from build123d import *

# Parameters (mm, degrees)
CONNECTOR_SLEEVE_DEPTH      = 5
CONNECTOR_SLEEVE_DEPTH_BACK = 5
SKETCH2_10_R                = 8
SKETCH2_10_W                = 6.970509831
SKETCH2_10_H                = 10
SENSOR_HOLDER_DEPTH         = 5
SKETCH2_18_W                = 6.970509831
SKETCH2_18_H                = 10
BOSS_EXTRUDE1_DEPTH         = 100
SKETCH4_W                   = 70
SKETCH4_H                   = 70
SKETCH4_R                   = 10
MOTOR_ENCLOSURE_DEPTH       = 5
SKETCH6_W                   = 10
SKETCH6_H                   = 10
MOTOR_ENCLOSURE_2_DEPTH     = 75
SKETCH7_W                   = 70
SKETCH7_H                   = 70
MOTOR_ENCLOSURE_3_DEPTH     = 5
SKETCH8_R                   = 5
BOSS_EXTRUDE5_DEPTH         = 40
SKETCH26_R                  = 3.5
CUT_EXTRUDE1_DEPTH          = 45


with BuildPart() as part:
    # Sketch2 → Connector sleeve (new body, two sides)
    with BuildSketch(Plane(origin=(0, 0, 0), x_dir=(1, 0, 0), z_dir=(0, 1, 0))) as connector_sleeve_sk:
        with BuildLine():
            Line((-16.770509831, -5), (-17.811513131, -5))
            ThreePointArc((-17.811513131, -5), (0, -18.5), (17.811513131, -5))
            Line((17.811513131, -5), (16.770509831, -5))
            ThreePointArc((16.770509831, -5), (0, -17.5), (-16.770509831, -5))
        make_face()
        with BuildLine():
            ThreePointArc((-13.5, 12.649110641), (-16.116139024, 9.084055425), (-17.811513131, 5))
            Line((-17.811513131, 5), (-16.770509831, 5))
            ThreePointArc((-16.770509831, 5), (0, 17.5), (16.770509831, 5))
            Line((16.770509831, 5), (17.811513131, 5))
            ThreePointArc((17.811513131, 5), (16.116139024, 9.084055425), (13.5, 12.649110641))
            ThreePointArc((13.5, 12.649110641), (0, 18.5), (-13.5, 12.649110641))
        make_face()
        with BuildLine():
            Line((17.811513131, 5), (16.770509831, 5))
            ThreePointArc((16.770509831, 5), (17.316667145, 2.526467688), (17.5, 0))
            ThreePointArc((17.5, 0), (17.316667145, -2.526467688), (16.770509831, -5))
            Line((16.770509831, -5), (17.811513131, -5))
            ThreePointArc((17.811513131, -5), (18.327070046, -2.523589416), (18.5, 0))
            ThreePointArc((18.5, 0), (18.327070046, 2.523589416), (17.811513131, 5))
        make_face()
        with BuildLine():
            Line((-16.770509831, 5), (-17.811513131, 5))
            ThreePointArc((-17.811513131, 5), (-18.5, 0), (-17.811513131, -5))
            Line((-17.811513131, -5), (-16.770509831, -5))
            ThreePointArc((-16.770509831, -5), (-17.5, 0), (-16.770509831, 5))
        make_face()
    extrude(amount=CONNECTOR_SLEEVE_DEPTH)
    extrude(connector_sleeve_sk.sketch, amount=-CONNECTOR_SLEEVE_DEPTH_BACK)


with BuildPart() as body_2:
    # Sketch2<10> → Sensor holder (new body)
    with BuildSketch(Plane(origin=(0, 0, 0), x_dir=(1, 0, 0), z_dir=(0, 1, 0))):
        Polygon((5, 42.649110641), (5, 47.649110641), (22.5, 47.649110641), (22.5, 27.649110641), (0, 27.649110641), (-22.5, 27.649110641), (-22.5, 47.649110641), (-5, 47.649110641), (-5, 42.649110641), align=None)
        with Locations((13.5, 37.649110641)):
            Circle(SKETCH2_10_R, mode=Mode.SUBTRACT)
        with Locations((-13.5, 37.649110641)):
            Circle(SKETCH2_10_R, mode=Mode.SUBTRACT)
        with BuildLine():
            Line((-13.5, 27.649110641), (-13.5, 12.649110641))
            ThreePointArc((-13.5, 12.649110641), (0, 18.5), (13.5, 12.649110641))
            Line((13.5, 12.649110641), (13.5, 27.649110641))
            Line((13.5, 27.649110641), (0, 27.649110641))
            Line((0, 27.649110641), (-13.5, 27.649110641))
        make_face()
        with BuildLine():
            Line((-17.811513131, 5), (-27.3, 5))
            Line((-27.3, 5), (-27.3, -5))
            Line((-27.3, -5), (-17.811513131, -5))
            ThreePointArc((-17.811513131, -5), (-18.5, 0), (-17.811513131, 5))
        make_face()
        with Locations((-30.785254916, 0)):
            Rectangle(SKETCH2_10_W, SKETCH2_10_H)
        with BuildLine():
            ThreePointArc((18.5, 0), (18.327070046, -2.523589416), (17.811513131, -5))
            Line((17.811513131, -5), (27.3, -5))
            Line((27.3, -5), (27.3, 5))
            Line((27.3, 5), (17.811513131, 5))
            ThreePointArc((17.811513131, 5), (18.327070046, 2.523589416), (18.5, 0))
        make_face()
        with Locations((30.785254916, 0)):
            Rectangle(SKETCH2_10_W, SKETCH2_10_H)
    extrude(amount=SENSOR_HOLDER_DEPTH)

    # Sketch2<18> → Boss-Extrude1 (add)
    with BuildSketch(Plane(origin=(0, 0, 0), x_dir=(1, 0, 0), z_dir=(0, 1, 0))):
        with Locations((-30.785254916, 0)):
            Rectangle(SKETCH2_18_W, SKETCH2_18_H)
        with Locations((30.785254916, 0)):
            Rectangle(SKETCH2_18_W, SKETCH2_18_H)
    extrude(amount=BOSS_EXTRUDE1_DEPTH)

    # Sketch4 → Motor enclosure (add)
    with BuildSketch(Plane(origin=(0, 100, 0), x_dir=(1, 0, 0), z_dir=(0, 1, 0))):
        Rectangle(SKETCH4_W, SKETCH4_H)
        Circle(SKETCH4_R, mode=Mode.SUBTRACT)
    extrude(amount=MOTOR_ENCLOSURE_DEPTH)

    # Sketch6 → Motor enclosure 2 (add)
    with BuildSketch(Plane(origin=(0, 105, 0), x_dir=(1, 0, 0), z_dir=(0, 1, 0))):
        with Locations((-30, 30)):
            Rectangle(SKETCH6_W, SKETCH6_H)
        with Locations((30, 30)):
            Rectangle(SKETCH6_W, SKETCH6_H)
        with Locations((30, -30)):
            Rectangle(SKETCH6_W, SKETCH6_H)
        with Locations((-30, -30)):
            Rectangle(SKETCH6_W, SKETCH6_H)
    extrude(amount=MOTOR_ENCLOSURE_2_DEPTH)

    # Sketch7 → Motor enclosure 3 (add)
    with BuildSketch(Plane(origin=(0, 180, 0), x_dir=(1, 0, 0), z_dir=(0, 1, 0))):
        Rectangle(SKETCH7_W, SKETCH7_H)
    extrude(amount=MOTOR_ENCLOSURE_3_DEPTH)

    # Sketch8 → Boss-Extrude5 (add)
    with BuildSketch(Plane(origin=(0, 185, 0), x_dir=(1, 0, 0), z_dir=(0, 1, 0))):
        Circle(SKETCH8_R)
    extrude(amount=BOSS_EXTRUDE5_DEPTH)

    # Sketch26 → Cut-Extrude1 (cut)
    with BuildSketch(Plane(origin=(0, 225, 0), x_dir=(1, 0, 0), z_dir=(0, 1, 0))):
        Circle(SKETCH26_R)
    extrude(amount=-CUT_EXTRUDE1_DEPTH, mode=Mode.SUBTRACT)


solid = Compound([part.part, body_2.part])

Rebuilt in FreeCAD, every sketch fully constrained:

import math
import FreeCAD as App
import Part
import Sketcher
Q = App.Units.Quantity


def add_polygon(sketch, points):
    """Adds a closed chain of lines whose ends are joined by coincident constraints."""
    first, n = sketch.GeometryCount, len(points)
    for a, b in zip(points, points[1:] + points[:1]):
        sketch.addGeometry(Part.LineSegment(App.Vector(*a, 0), App.Vector(*b, 0)), False)
    for i in range(n):
        sketch.addConstraint(Sketcher.Constraint("Coincident", first + i, 2, first + (i + 1) % n, 1))

doc = App.newDocument("Part")
body = doc.addObject("PartDesign::Body", "Body")

sketch1 = body.newObject("Sketcher::SketchObject", "Sketch")
sketch1.AttachmentSupport = (doc.getObject("XZ_Plane"), [""])
sketch1.MapMode = "FlatFace"
sketch1.addGeometry(Part.ArcOfCircle(Part.Circle(App.Vector(0, 0, 0), App.Vector(0, 0, 1), 19), math.radians(16), math.radians(164)), False)
sketch1.addGeometry(Part.ArcOfCircle(Part.Circle(App.Vector(0, 0, 0), App.Vector(0, 0, 1), 18), math.radians(0), math.radians(15.68)), False)
sketch1.addGeometry(Part.ArcOfCircle(Part.Circle(App.Vector(0, 0, 0), App.Vector(0, 0, 1), 18), math.radians(-15.68), math.radians(0)), False)
sketch1.addGeometry(Part.ArcOfCircle(Part.Circle(App.Vector(0, 0, 0), App.Vector(0, 0, 1), 19), math.radians(-43), math.radians(-16)), False)
sketch1.addGeometry(Part.ArcOfCircle(Part.Circle(App.Vector(0, 0, 0), App.Vector(0, 0, 1), 19), math.radians(-137), math.radians(-43)), False)
sketch1.addGeometry(Part.ArcOfCircle(Part.Circle(App.Vector(0, 0, 0), App.Vector(0, 0, 1), 19), math.radians(-164), math.radians(-137)), False)
sketch1.addGeometry(Part.ArcOfCircle(Part.Circle(App.Vector(0, 0, 0), App.Vector(0, 0, 1), 19), math.radians(164), math.radians(196)), False)
sketch1.addGeometry(Part.ArcOfCircle(Part.Circle(App.Vector(0, 0, 0), App.Vector(0, 0, 1), 18), math.radians(-163), math.radians(-17)), False)
sketch1.addGeometry(Part.ArcOfCircle(Part.Circle(App.Vector(0, 0, 0), App.Vector(0, 0, 1), 18), math.radians(-16.6), math.radians(0)), False)
sketch1.addGeometry(Part.ArcOfCircle(Part.Circle(App.Vector(0, 0, 0), App.Vector(0, 0, 1), 18), math.radians(0), math.radians(16.6)), False)
sketch1.addGeometry(Part.ArcOfCircle(Part.Circle(App.Vector(0, 0, 0), App.Vector(0, 0, 1), 18), math.radians(17), math.radians(163)), False)
sketch1.addGeometry(Part.ArcOfCircle(Part.Circle(App.Vector(0, 0, 0), App.Vector(0, 0, 1), 17), math.radians(163), math.radians(197)), False)
sketch1.addConstraint(Sketcher.Constraint("Tangent", 0, 1, 1, 2))
sketch1.addConstraint(Sketcher.Constraint("Tangent", 1, 1, 2, 2))
sketch1.addConstraint(Sketcher.Constraint("Tangent", 2, 1, 3, 2))
sketch1.addConstraint(Sketcher.Constraint("Tangent", 3, 1, 4, 2))
sketch1.addConstraint(Sketcher.Constraint("Tangent", 4, 1, 5, 2))
sketch1.addConstraint(Sketcher.Constraint("Tangent", 5, 1, 6, 2))
sketch1.addConstraint(Sketcher.Constraint("Tangent", 6, 1, 0, 2))
sketch1.addConstraint(Sketcher.Constraint("Tangent", 7, 2, 8, 1))
sketch1.addConstraint(Sketcher.Constraint("Tangent", 8, 2, 9, 1))
sketch1.addConstraint(Sketcher.Constraint("Tangent", 9, 2, 10, 1))
sketch1.addConstraint(Sketcher.Constraint("Tangent", 10, 2, 11, 1))
sketch1.addConstraint(Sketcher.Constraint("Tangent", 11, 2, 7, 1))
sketch1.addConstraint(Sketcher.Constraint("Coincident", 0, 3, -1, 1))
sketch1.addConstraint(Sketcher.Constraint("Coincident", 2, 3, -1, 1))
sketch1.addConstraint(Sketcher.Constraint("Coincident", 4, 3, -1, 1))
sketch1.addConstraint(Sketcher.Constraint("Coincident", 7, 3, -1, 1))
sketch1.addConstraint(Sketcher.Constraint("Coincident", 9, 3, -1, 1))
sketch1.addConstraint(Sketcher.Constraint("PointOnObject", 1, 1, -1))
sketch1.addConstraint(Sketcher.Constraint("PointOnObject", 8, 2, -1))
sketch1.addConstraint(Sketcher.Constraint("Horizontal", 3, 1, 4, 1))
sketch1.addConstraint(Sketcher.Constraint("Horizontal", 2, 1, 5, 1))
sketch1.addConstraint(Sketcher.Constraint("Horizontal", 0, 1, 6, 1))
sketch1.addConstraint(Sketcher.Constraint("Horizontal", 5, 1, 7, 2))
sketch1.addConstraint(Sketcher.Constraint("Horizontal", 6, 1, 9, 2))
sketch1.addConstraint(Sketcher.Constraint("Horizontal", 9, 2, 10, 2))
sketch1.addConstraint(Sketcher.Constraint("Horizontal", 7, 2, 11, 2))
sketch1.addConstraint(Sketcher.Constraint("Vertical", 0, 1, 2, 1))
sketch1.addConstraint(Sketcher.Constraint("Radius", 0, Q("18.5 mm")))
sketch1.addConstraint(Sketcher.Constraint("Radius", 7, Q("17.5 mm")))
sketch1.addConstraint(Sketcher.Constraint("DistanceY", -1, 1, 0, 1, Q("5 mm")))
sketch1.addConstraint(Sketcher.Constraint("DistanceX", 3, 1, 1, 1, Q("5 mm")))
pad1 = body.newObject("PartDesign::Pad", "Pad")
pad1.Profile = sketch1
pad1.Type = "TwoLengths"
pad1.Length = 5
pad1.Length2 = 5
pad1.Reversed = True
body2 = doc.addObject("PartDesign::Body", "Body001")
body2.AllowCompound = True

sketch2 = body2.newObject("Sketcher::SketchObject", "Sketch001")
sketch2.AttachmentSupport = (doc.getObject("XZ_Plane001"), [""])
sketch2.MapMode = "FlatFace"
sketch2.addGeometry(Part.LineSegment(App.Vector(5, -48, 0), App.Vector(5, -43, 0)), False)
sketch2.addGeometry(Part.LineSegment(App.Vector(5, -43, 0), App.Vector(-5, -43, 0)), False)
sketch2.addGeometry(Part.LineSegment(App.Vector(-5, -43, 0), App.Vector(-5, -48, 0)), False)
sketch2.addGeometry(Part.LineSegment(App.Vector(-5, -48, 0), App.Vector(-22, -48, 0)), False)
sketch2.addGeometry(Part.LineSegment(App.Vector(-22, -48, 0), App.Vector(-22, -28, 0)), False)
sketch2.addGeometry(Part.LineSegment(App.Vector(-22, -28, 0), App.Vector(-14, -28, 0)), False)
sketch2.addGeometry(Part.LineSegment(App.Vector(-14, -28, 0), App.Vector(-14, -13, 0)), False)
sketch2.addGeometry(Part.ArcOfCircle(Part.Circle(App.Vector(0, 0, 0), App.Vector(0, 0, 1), 19), math.radians(-137), math.radians(-43)), False)
sketch2.addGeometry(Part.LineSegment(App.Vector(14, -13, 0), App.Vector(14, -28, 0)), False)
sketch2.addGeometry(Part.LineSegment(App.Vector(14, -28, 0), App.Vector(22, -28, 0)), False)
sketch2.addGeometry(Part.LineSegment(App.Vector(22, -28, 0), App.Vector(22, -48, 0)), False)
sketch2.addGeometry(Part.LineSegment(App.Vector(22, -48, 0), App.Vector(5, -48, 0)), False)
sketch2.addGeometry(Part.Circle(App.Vector(14, -38, 0), App.Vector(0, 0, 1), 8), False)
sketch2.addGeometry(Part.Circle(App.Vector(-14, -38, 0), App.Vector(0, 0, 1), 8), False)
sketch2.addGeometry(Part.LineSegment(App.Vector(-18, -5, 0), App.Vector(-34, -5, 0)), False)
sketch2.addGeometry(Part.LineSegment(App.Vector(-34, -5, 0), App.Vector(-34, 5, 0)), False)
sketch2.addGeometry(Part.LineSegment(App.Vector(-34, 5, 0), App.Vector(-18, 5, 0)), False)
sketch2.addGeometry(Part.ArcOfCircle(Part.Circle(App.Vector(0, 0, 0), App.Vector(0, 0, 1), 19), math.radians(164), math.radians(196)), False)
sketch2.addGeometry(Part.ArcOfCircle(Part.Circle(App.Vector(0, 0, 0), App.Vector(0, 0, 1), 18), math.radians(0), math.radians(15.68)), False)
sketch2.addGeometry(Part.LineSegment(App.Vector(18, 5, 0), App.Vector(34, 5, 0)), False)
sketch2.addGeometry(Part.LineSegment(App.Vector(34, 5, 0), App.Vector(34, -5, 0)), False)
sketch2.addGeometry(Part.LineSegment(App.Vector(34, -5, 0), App.Vector(18, -5, 0)), False)
sketch2.addGeometry(Part.ArcOfCircle(Part.Circle(App.Vector(0, 0, 0), App.Vector(0, 0, 1), 18), math.radians(-15.68), math.radians(0)), False)
sketch2.addConstraint(Sketcher.Constraint("Coincident", 0, 2, 1, 1))
sketch2.addConstraint(Sketcher.Constraint("Coincident", 1, 2, 2, 1))
sketch2.addConstraint(Sketcher.Constraint("Coincident", 2, 2, 3, 1))
sketch2.addConstraint(Sketcher.Constraint("Coincident", 3, 2, 4, 1))
sketch2.addConstraint(Sketcher.Constraint("Coincident", 4, 2, 5, 1))
sketch2.addConstraint(Sketcher.Constraint("Coincident", 5, 2, 6, 1))
sketch2.addConstraint(Sketcher.Constraint("Coincident", 6, 2, 7, 1))
sketch2.addConstraint(Sketcher.Constraint("Coincident", 7, 2, 8, 1))
sketch2.addConstraint(Sketcher.Constraint("Coincident", 8, 2, 9, 1))
sketch2.addConstraint(Sketcher.Constraint("Coincident", 9, 2, 10, 1))
sketch2.addConstraint(Sketcher.Constraint("Coincident", 10, 2, 11, 1))
sketch2.addConstraint(Sketcher.Constraint("Coincident", 11, 2, 0, 1))
sketch2.addConstraint(Sketcher.Constraint("Coincident", 14, 2, 15, 1))
sketch2.addConstraint(Sketcher.Constraint("Coincident", 15, 2, 16, 1))
sketch2.addConstraint(Sketcher.Constraint("Coincident", 16, 2, 17, 1))
sketch2.addConstraint(Sketcher.Constraint("Coincident", 17, 2, 14, 1))
sketch2.addConstraint(Sketcher.Constraint("Coincident", 18, 2, 19, 1))
sketch2.addConstraint(Sketcher.Constraint("Coincident", 19, 2, 20, 1))
sketch2.addConstraint(Sketcher.Constraint("Coincident", 20, 2, 21, 1))
sketch2.addConstraint(Sketcher.Constraint("Coincident", 21, 2, 22, 1))
sketch2.addConstraint(Sketcher.Constraint("Tangent", 22, 2, 18, 1))
sketch2.addConstraint(Sketcher.Constraint("Vertical", 0))
sketch2.addConstraint(Sketcher.Constraint("Horizontal", 1))
sketch2.addConstraint(Sketcher.Constraint("Vertical", 2))
sketch2.addConstraint(Sketcher.Constraint("Horizontal", 3))
sketch2.addConstraint(Sketcher.Constraint("Vertical", 4))
sketch2.addConstraint(Sketcher.Constraint("Horizontal", 5))
sketch2.addConstraint(Sketcher.Constraint("Vertical", 6))
sketch2.addConstraint(Sketcher.Constraint("Vertical", 8))
sketch2.addConstraint(Sketcher.Constraint("Horizontal", 9))
sketch2.addConstraint(Sketcher.Constraint("Vertical", 10))
sketch2.addConstraint(Sketcher.Constraint("Horizontal", 11))
sketch2.addConstraint(Sketcher.Constraint("Horizontal", 14))
sketch2.addConstraint(Sketcher.Constraint("Vertical", 15))
sketch2.addConstraint(Sketcher.Constraint("Horizontal", 16))
sketch2.addConstraint(Sketcher.Constraint("Horizontal", 19))
sketch2.addConstraint(Sketcher.Constraint("Vertical", 20))
sketch2.addConstraint(Sketcher.Constraint("Horizontal", 21))
sketch2.addConstraint(Sketcher.Constraint("Coincident", 7, 3, -1, 1))
sketch2.addConstraint(Sketcher.Constraint("Coincident", 17, 3, -1, 1))
sketch2.addConstraint(Sketcher.Constraint("Coincident", 18, 3, -1, 1))
sketch2.addConstraint(Sketcher.Constraint("Equal", 12, 13))
sketch2.addConstraint(Sketcher.Constraint("Equal", 7, 17))
sketch2.addConstraint(Sketcher.Constraint("Equal", 17, 18))
sketch2.addConstraint(Sketcher.Constraint("Equal", 18, 22))
sketch2.addConstraint(Sketcher.Constraint("Symmetric", 14, 2, 19, 2, -1, 1))
sketch2.addConstraint(Sketcher.Constraint("Symmetric", 12, 3, 13, 3, -2))
sketch2.addConstraint(Sketcher.Constraint("Symmetric", 5, 2, 8, 2, -2))
sketch2.addConstraint(Sketcher.Constraint("Symmetric", 3, 2, 10, 2, -2))
sketch2.addConstraint(Sketcher.Constraint("PointOnObject", 22, 2, -1))
sketch2.addConstraint(Sketcher.Constraint("Horizontal", 16, 2, 18, 2))
sketch2.addConstraint(Sketcher.Constraint("Horizontal", 17, 2, 20, 2))
sketch2.addConstraint(Sketcher.Constraint("Vertical", 13, 3, 5, 2))
sketch2.addConstraint(Sketcher.Constraint("Equal", 3, 11))
sketch2.addConstraint(Sketcher.Constraint("Equal", 1, 15))
sketch2.addConstraint(Sketcher.Constraint("Diameter", 12, Q("16 mm")))
sketch2.addConstraint(Sketcher.Constraint("Radius", 7, Q("18.5 mm")))
sketch2.addConstraint(Sketcher.Constraint("DistanceX", 1, 2, 1, 1, Q("10 mm")))
sketch2.addConstraint(Sketcher.Constraint("DistanceX", 5, 1, 5, 2, Q("9 mm")))
sketch2.addConstraint(Sketcher.Constraint("DistanceY", 0, 1, 0, 2, Q("5 mm")))
sketch2.addConstraint(Sketcher.Constraint("DistanceY", 4, 1, 4, 2, Q("20 mm")))
sketch2.addConstraint(Sketcher.Constraint("DistanceY", 6, 1, 6, 2, Q("15 mm")))
sketch2.addConstraint(Sketcher.Constraint("DistanceX", 3, 2, 3, 1, Q("17.5 mm")))
sketch2.addConstraint(Sketcher.Constraint("DistanceY", 0, 2, 12, 3, Q("5 mm")))
sketch2.addConstraint(Sketcher.Constraint("DistanceX", 14, 2, 14, 1, Q("16.458997 mm")))
pad2 = body2.newObject("PartDesign::Pad", "Pad001")
pad2.Profile = sketch2
pad2.Length = 5
pad2.Reversed = True

sketch3 = body2.newObject("Sketcher::SketchObject", "Sketch002")
sketch3.AttachmentSupport = (doc.getObject("XZ_Plane001"), [""])
sketch3.MapMode = "FlatFace"
add_polygon(sketch3, [(-34, -5), (-34, 5), (-27, 5), (-27, -5)])
add_polygon(sketch3, [(27, -5), (27, 5), (34, 5), (34, -5)])
sketch3.addConstraint(Sketcher.Constraint("Vertical", 0))
sketch3.addConstraint(Sketcher.Constraint("Horizontal", 1))
sketch3.addConstraint(Sketcher.Constraint("Vertical", 2))
sketch3.addConstraint(Sketcher.Constraint("Horizontal", 3))
sketch3.addConstraint(Sketcher.Constraint("Vertical", 4))
sketch3.addConstraint(Sketcher.Constraint("Horizontal", 5))
sketch3.addConstraint(Sketcher.Constraint("Vertical", 6))
sketch3.addConstraint(Sketcher.Constraint("Horizontal", 7))
sketch3.addConstraint(Sketcher.Constraint("Symmetric", 2, 2, 4, 2, -1, 1))
sketch3.addConstraint(Sketcher.Constraint("Symmetric", 0, 2, 6, 2, -1, 1))
sketch3.addConstraint(Sketcher.Constraint("Horizontal", 1, 2, 4, 2))
sketch3.addConstraint(Sketcher.Constraint("DistanceY", 0, 1, 0, 2, Q("10 mm")))
sketch3.addConstraint(Sketcher.Constraint("DistanceX", 1, 2, -1, 1, Q("27.3 mm")))
sketch3.addConstraint(Sketcher.Constraint("DistanceX", 1, 1, 1, 2, Q("6.97051 mm")))
pad3 = body2.newObject("PartDesign::Pad", "Pad002")
pad3.Profile = sketch3
pad3.Length = 100
pad3.Reversed = True

sketch4 = body2.newObject("Sketcher::SketchObject", "Sketch003")
sketch4.AttachmentSupport = (doc.getObject("XZ_Plane001"), [""])
sketch4.MapMode = "FlatFace"
sketch4.AttachmentOffset = App.Placement(App.Vector(0, 0, -100), App.Rotation())
add_polygon(sketch4, [(-35, -35), (-35, 35), (35, 35), (35, -35)])
sketch4.addGeometry(Part.Circle(App.Vector(0, 0, 0), App.Vector(0, 0, 1), 10), False)
sketch4.addConstraint(Sketcher.Constraint("Vertical", 0))
sketch4.addConstraint(Sketcher.Constraint("Horizontal", 1))
sketch4.addConstraint(Sketcher.Constraint("Vertical", 2))
sketch4.addConstraint(Sketcher.Constraint("Horizontal", 3))
sketch4.addConstraint(Sketcher.Constraint("Coincident", 4, 3, -1, 1))
sketch4.addConstraint(Sketcher.Constraint("Symmetric", 0, 2, 2, 2, -1, 1))
sketch4.addConstraint(Sketcher.Constraint("Equal", 3, 0))
sketch4.addConstraint(Sketcher.Constraint("Diameter", 4, Q("20 mm")))
sketch4.addConstraint(Sketcher.Constraint("DistanceX", 1, 1, 1, 2, Q("70 mm")))
pad4 = body2.newObject("PartDesign::Pad", "Pad003")
pad4.Profile = sketch4
pad4.Length = 5
pad4.Reversed = True

sketch5 = body2.newObject("Sketcher::SketchObject", "Sketch004")
sketch5.AttachmentSupport = (doc.getObject("XZ_Plane001"), [""])
sketch5.MapMode = "FlatFace"
sketch5.AttachmentOffset = App.Placement(App.Vector(0, 0, -105), App.Rotation())
add_polygon(sketch5, [(-35, -35), (-35, -25), (-25, -25), (-25, -35)])
add_polygon(sketch5, [(25, -35), (25, -25), (35, -25), (35, -35)])
add_polygon(sketch5, [(25, 25), (25, 35), (35, 35), (35, 25)])
add_polygon(sketch5, [(-35, 25), (-35, 35), (-25, 35), (-25, 25)])
sketch5.addConstraint(Sketcher.Constraint("Vertical", 0))
sketch5.addConstraint(Sketcher.Constraint("Horizontal", 1))
sketch5.addConstraint(Sketcher.Constraint("Vertical", 2))
sketch5.addConstraint(Sketcher.Constraint("Horizontal", 3))
sketch5.addConstraint(Sketcher.Constraint("Vertical", 4))
sketch5.addConstraint(Sketcher.Constraint("Horizontal", 5))
sketch5.addConstraint(Sketcher.Constraint("Vertical", 6))
sketch5.addConstraint(Sketcher.Constraint("Horizontal", 7))
sketch5.addConstraint(Sketcher.Constraint("Vertical", 8))
sketch5.addConstraint(Sketcher.Constraint("Horizontal", 9))
sketch5.addConstraint(Sketcher.Constraint("Vertical", 10))
sketch5.addConstraint(Sketcher.Constraint("Horizontal", 11))
sketch5.addConstraint(Sketcher.Constraint("Vertical", 12))
sketch5.addConstraint(Sketcher.Constraint("Horizontal", 13))
sketch5.addConstraint(Sketcher.Constraint("Vertical", 14))
sketch5.addConstraint(Sketcher.Constraint("Horizontal", 15))
sketch5.addConstraint(Sketcher.Constraint("Symmetric", 2, 2, 8, 2, -1, 1))
sketch5.addConstraint(Sketcher.Constraint("Symmetric", 0, 2, 10, 2, -1, 1))
sketch5.addConstraint(Sketcher.Constraint("Symmetric", 6, 2, 12, 2, -1, 1))
sketch5.addConstraint(Sketcher.Constraint("Symmetric", 4, 2, 14, 2, -1, 1))
sketch5.addConstraint(Sketcher.Constraint("Symmetric", 1, 2, 4, 2, -2))
sketch5.addConstraint(Sketcher.Constraint("Symmetric", 3, 2, 6, 2, -2))
sketch5.addConstraint(Sketcher.Constraint("Equal", 15, 0))
sketch5.addConstraint(Sketcher.Constraint("DistanceX", 1, 1, 1, 2, Q("10 mm")))
sketch5.addConstraint(Sketcher.Constraint("DistanceX", 0, 2, -1, 1, Q("35 mm")))
sketch5.addConstraint(Sketcher.Constraint("DistanceY", 0, 2, -1, 1, Q("25 mm")))
pad5 = body2.newObject("PartDesign::Pad", "Pad004")
pad5.Profile = sketch5
pad5.Length = 75
pad5.Reversed = True

sketch6 = body2.newObject("Sketcher::SketchObject", "Sketch005")
sketch6.AttachmentSupport = (doc.getObject("XZ_Plane001"), [""])
sketch6.MapMode = "FlatFace"
sketch6.AttachmentOffset = App.Placement(App.Vector(0, 0, -180), App.Rotation())
add_polygon(sketch6, [(-35, -35), (-35, 35), (35, 35), (35, -35)])
sketch6.addConstraint(Sketcher.Constraint("Vertical", 0))
sketch6.addConstraint(Sketcher.Constraint("Horizontal", 1))
sketch6.addConstraint(Sketcher.Constraint("Vertical", 2))
sketch6.addConstraint(Sketcher.Constraint("Horizontal", 3))
sketch6.addConstraint(Sketcher.Constraint("Symmetric", 0, 2, 2, 2, -1, 1))
sketch6.addConstraint(Sketcher.Constraint("Equal", 3, 0))
sketch6.addConstraint(Sketcher.Constraint("DistanceX", 1, 1, 1, 2, Q("70 mm")))
pad6 = body2.newObject("PartDesign::Pad", "Pad005")
pad6.Profile = sketch6
pad6.Length = 5
pad6.Reversed = True

sketch7 = body2.newObject("Sketcher::SketchObject", "Sketch006")
sketch7.AttachmentSupport = (doc.getObject("XZ_Plane001"), [""])
sketch7.MapMode = "FlatFace"
sketch7.AttachmentOffset = App.Placement(App.Vector(0, 0, -185), App.Rotation())
sketch7.addGeometry(Part.Circle(App.Vector(0, 0, 0), App.Vector(0, 0, 1), 5), False)
sketch7.addConstraint(Sketcher.Constraint("Coincident", 0, 3, -1, 1))
sketch7.addConstraint(Sketcher.Constraint("Diameter", 0, Q("10 mm")))
pad7 = body2.newObject("PartDesign::Pad", "Pad006")
pad7.Profile = sketch7
pad7.Length = 40
pad7.Reversed = True

sketch8 = body2.newObject("Sketcher::SketchObject", "Sketch007")
sketch8.AttachmentSupport = (doc.getObject("XZ_Plane001"), [""])
sketch8.MapMode = "FlatFace"
sketch8.AttachmentOffset = App.Placement(App.Vector(0, 0, -225), App.Rotation())
sketch8.addGeometry(Part.Circle(App.Vector(0, 0, 0), App.Vector(0, 0, 1), 3.5), False)
sketch8.addConstraint(Sketcher.Constraint("Coincident", 0, 3, -1, 1))
sketch8.addConstraint(Sketcher.Constraint("Diameter", 0, Q("7 mm")))
pocket1 = body2.newObject("PartDesign::Pocket", "Pocket")
pocket1.Profile = sketch8
pocket1.Length = 45
pocket1.Reversed = True

doc.recompute()
